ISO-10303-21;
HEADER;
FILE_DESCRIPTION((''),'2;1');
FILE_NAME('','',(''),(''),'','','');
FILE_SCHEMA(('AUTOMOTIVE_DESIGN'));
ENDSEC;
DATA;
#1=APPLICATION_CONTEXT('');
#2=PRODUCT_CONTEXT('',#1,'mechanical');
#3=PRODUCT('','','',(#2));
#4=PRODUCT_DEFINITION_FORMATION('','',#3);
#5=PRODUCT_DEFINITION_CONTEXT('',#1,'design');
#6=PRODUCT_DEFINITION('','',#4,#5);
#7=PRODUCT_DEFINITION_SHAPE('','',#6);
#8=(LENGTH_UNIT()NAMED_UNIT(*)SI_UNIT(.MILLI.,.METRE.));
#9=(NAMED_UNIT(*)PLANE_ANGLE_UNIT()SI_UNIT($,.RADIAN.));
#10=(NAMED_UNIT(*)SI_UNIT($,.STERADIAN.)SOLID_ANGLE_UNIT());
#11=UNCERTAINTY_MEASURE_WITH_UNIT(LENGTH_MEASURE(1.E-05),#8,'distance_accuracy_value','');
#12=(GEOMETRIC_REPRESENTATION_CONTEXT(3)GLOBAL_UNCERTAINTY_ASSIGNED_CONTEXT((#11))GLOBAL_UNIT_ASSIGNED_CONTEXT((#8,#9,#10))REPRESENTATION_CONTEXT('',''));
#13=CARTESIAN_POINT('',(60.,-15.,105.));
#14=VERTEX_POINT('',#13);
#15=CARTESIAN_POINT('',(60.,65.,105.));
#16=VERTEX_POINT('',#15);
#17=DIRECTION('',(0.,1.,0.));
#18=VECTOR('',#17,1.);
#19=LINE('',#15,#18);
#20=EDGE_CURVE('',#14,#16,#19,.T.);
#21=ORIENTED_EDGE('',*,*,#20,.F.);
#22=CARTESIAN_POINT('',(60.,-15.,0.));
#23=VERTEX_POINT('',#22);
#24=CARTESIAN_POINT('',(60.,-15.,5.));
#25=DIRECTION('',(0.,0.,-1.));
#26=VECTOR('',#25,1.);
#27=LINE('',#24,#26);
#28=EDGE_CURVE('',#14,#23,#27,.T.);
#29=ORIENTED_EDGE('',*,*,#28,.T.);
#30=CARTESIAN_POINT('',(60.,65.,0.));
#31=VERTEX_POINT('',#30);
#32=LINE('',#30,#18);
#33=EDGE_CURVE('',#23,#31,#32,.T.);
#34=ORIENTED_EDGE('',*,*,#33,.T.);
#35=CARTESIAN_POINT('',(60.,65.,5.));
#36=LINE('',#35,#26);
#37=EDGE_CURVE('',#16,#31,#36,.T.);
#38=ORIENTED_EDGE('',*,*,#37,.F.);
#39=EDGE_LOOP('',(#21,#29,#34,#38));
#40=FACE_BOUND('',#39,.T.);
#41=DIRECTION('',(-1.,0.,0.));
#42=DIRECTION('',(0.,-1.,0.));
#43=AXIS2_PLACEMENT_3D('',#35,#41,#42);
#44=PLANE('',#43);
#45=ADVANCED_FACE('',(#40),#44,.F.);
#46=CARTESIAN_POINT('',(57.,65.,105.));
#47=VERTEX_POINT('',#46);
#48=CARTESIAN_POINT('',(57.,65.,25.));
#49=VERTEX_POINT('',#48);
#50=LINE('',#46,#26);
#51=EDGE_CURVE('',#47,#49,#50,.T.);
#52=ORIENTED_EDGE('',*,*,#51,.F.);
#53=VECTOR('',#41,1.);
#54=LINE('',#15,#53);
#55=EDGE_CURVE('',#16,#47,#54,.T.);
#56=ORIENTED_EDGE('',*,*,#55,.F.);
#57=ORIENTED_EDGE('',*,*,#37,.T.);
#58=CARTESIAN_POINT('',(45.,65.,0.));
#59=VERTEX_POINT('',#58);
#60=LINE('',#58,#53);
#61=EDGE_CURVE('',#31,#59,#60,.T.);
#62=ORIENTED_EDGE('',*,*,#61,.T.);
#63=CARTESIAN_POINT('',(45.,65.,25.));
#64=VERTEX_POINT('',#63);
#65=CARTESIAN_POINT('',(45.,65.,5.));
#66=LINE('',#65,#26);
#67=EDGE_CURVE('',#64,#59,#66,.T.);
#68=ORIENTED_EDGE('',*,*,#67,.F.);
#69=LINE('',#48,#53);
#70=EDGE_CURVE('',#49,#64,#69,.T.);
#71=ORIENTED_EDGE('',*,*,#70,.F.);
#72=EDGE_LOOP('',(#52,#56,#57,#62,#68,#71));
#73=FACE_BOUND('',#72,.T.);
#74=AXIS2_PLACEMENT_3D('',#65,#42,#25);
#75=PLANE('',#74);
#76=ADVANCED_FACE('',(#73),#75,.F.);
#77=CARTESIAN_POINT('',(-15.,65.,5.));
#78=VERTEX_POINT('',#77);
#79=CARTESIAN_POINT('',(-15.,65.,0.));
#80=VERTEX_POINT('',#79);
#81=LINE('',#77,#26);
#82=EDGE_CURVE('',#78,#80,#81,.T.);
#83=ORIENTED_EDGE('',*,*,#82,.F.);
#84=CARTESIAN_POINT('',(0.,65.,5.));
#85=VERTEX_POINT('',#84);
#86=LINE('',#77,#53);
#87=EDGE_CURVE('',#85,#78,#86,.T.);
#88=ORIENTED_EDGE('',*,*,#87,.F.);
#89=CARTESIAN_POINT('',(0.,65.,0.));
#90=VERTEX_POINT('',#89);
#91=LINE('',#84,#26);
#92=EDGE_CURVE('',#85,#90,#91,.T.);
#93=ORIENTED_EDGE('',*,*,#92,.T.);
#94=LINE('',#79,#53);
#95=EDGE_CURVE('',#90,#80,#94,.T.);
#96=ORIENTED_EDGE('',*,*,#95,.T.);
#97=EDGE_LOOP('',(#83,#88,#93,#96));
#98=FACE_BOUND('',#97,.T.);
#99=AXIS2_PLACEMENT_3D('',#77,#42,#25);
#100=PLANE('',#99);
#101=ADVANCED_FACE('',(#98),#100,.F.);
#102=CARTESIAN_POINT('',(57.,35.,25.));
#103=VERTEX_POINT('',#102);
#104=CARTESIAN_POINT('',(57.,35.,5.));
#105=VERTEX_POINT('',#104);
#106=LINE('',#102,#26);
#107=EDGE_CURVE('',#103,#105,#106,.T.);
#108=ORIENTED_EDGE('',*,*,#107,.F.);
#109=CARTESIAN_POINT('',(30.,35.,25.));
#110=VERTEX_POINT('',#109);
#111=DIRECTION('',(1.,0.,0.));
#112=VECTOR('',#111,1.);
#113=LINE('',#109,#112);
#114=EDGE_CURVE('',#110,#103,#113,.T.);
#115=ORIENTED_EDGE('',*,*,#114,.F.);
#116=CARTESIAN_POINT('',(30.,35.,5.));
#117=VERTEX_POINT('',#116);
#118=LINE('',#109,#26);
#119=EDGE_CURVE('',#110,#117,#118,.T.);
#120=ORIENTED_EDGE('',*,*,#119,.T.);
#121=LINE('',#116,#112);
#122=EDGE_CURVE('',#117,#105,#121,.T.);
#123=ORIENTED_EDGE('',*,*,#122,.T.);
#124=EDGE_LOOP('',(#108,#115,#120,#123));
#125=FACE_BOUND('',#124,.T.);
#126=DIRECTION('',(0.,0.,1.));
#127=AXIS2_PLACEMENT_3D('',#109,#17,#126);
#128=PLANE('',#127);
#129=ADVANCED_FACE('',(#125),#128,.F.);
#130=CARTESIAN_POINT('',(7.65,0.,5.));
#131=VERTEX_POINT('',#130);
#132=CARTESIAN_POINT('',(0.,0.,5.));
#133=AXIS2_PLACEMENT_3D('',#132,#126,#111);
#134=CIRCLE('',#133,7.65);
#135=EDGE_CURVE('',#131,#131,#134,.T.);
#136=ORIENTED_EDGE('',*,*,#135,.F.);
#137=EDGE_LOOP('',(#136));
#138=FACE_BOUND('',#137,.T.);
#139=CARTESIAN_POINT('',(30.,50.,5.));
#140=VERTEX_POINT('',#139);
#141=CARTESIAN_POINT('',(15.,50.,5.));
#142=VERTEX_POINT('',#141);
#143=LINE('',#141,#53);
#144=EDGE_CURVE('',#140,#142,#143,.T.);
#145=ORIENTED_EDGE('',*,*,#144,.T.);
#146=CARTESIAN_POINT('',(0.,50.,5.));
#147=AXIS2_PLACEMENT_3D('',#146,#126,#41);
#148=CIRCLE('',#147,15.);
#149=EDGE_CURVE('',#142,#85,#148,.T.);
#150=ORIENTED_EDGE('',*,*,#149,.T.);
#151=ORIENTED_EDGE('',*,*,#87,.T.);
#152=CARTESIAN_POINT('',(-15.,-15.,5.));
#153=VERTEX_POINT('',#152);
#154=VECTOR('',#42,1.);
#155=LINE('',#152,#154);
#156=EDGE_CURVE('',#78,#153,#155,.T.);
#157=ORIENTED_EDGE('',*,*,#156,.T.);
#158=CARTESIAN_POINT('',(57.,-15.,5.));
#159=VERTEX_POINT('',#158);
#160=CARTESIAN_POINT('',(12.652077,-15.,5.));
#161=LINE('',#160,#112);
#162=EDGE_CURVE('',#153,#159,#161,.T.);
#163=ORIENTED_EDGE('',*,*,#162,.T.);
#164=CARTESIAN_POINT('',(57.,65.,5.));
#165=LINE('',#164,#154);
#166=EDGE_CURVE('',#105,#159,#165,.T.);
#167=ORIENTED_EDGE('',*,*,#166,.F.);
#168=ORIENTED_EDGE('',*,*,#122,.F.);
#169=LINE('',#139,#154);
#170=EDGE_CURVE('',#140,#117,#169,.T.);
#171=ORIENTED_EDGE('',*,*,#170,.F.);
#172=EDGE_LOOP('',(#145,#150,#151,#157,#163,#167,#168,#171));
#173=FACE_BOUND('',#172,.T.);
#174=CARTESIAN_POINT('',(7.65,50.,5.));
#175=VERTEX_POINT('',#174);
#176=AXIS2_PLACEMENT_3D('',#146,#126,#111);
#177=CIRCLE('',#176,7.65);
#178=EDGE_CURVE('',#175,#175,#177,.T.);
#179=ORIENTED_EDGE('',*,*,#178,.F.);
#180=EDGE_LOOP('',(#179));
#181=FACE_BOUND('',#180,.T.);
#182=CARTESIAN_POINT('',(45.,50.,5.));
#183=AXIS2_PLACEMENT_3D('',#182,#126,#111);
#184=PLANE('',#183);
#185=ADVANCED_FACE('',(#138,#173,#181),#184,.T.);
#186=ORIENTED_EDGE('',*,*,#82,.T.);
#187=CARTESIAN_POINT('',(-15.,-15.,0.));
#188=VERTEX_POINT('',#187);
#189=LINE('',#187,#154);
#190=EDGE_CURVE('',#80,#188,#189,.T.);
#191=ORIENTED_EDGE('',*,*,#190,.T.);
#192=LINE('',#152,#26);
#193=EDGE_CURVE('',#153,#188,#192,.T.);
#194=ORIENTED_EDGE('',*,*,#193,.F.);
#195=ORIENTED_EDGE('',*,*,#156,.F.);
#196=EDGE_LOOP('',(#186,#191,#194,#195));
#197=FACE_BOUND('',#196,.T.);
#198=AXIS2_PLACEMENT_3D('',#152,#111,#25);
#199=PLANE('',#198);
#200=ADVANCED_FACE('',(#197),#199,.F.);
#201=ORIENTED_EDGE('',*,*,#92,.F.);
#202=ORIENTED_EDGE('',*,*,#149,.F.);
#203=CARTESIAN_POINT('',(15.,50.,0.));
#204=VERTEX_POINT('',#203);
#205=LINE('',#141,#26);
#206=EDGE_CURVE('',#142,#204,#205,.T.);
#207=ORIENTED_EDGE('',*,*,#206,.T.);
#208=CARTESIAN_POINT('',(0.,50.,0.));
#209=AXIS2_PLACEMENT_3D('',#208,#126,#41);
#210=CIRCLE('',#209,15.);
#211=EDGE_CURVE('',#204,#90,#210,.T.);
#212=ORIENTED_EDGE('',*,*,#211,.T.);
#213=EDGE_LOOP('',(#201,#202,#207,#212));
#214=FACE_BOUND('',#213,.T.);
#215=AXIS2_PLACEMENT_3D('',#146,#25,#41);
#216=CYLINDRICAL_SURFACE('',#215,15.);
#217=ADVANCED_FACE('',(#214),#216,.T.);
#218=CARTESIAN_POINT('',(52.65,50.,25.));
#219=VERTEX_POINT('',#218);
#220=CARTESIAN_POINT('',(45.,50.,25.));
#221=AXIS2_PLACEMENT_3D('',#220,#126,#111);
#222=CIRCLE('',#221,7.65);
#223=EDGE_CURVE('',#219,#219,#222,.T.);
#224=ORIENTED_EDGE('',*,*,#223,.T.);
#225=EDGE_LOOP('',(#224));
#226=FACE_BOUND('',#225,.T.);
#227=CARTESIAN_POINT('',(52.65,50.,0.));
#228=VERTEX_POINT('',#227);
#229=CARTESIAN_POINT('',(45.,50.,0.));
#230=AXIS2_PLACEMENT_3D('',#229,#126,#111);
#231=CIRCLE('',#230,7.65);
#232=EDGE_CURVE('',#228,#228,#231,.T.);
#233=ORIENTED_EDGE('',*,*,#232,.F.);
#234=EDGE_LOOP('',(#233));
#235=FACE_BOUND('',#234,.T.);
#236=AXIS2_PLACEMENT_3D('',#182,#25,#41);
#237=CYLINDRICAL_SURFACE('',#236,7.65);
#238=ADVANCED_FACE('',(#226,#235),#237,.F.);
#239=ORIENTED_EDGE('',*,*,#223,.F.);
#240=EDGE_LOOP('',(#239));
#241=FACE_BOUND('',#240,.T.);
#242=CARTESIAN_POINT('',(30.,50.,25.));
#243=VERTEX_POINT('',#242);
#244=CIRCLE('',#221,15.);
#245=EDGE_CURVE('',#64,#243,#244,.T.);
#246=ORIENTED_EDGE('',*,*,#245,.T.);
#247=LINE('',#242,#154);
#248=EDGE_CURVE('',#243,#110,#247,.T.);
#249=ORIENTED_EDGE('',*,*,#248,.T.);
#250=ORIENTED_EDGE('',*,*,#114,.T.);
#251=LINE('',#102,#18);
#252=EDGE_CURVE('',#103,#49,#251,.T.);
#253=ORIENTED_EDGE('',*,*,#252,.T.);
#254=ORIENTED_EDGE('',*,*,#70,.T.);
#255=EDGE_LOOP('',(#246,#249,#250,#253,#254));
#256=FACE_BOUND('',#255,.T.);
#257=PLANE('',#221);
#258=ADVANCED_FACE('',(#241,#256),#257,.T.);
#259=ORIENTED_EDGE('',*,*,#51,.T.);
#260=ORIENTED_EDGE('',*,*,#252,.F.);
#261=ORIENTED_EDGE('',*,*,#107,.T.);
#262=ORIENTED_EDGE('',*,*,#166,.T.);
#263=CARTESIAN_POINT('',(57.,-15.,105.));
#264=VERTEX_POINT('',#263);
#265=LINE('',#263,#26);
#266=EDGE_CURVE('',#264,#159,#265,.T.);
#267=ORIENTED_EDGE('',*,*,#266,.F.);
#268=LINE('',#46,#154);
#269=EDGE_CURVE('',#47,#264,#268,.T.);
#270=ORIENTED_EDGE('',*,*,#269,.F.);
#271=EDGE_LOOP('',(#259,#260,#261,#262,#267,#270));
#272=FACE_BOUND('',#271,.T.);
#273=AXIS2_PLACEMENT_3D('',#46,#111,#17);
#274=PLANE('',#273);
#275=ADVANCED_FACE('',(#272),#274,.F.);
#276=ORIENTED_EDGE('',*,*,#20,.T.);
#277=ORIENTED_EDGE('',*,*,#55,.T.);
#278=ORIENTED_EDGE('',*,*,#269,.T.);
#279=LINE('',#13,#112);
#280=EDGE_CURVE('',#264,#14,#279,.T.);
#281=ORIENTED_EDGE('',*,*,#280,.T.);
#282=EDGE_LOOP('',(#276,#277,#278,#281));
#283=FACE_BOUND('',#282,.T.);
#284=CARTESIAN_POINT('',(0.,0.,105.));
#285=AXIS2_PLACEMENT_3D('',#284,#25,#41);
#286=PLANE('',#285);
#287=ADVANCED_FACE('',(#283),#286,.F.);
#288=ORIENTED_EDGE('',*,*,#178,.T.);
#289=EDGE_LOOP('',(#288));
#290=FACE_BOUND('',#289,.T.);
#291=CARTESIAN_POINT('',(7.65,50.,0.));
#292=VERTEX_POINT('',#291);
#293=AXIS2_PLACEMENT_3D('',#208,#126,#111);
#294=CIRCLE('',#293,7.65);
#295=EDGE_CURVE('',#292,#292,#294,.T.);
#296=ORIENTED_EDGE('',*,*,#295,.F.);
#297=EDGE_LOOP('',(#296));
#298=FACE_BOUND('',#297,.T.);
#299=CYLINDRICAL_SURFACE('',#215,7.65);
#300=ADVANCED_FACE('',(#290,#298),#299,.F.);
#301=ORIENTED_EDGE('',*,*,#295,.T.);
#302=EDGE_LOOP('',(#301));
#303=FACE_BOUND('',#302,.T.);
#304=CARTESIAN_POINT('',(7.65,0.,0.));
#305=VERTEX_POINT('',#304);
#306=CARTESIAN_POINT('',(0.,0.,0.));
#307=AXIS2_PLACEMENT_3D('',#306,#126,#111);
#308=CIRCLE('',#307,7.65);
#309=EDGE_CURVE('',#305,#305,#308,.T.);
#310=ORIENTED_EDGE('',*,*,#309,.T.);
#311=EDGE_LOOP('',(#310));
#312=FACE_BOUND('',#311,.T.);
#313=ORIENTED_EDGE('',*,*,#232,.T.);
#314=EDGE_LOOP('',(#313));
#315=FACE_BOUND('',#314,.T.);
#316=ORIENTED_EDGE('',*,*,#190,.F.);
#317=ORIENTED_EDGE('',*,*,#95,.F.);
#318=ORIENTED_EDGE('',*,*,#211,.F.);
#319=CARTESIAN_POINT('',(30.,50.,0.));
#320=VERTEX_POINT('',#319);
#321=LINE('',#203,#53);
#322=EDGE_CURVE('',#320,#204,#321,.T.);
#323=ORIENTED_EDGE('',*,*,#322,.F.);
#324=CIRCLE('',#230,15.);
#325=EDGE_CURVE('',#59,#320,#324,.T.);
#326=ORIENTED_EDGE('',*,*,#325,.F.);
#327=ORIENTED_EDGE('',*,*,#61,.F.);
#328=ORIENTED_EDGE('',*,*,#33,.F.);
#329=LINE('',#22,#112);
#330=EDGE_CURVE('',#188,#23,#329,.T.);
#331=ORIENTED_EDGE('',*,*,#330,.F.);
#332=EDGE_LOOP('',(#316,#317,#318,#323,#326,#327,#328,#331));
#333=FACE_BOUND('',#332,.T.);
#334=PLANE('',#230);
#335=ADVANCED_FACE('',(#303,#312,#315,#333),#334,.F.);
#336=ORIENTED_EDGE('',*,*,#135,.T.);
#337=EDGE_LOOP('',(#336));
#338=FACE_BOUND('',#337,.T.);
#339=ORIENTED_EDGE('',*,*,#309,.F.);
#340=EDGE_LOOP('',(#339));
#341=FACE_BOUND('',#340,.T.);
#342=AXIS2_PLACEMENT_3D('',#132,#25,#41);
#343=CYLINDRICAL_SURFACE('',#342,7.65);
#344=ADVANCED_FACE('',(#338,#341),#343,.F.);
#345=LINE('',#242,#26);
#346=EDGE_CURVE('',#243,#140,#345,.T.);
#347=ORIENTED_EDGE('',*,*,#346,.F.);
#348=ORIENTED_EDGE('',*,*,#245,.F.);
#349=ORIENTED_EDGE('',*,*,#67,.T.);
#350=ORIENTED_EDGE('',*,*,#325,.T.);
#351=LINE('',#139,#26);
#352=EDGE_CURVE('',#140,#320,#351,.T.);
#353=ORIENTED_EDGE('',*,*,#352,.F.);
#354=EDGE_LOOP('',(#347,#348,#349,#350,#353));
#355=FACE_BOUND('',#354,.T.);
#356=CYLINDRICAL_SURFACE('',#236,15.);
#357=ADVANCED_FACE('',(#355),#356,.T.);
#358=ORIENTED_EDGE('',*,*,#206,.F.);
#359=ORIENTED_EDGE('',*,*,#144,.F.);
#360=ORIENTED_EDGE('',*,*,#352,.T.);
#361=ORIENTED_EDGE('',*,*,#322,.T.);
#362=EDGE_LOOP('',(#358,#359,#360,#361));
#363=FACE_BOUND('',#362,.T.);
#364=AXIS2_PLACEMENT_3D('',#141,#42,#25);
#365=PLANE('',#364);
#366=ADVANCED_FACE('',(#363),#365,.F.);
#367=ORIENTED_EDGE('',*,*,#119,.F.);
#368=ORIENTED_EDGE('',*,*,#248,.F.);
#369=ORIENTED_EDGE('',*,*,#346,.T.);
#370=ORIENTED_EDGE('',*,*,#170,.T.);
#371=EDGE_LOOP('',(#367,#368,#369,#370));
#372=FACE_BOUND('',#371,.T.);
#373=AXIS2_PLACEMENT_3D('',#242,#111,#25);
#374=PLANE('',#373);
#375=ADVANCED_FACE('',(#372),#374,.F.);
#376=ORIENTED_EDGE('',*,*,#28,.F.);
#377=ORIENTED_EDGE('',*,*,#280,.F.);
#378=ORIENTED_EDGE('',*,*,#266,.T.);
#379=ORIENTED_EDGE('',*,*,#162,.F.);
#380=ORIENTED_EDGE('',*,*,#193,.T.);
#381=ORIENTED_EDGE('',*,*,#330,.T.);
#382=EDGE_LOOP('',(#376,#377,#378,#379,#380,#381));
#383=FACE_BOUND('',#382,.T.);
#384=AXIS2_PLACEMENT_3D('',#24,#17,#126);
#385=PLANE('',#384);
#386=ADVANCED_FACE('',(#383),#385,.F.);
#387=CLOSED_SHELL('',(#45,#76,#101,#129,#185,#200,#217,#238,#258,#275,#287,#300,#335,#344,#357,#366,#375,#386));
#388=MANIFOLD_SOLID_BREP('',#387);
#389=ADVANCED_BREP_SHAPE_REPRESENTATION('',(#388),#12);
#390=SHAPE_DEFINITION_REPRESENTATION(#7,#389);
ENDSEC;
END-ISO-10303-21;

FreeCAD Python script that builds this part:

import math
import FreeCAD as App
import Part
import Sketcher
from FreeCAD import Vector
Q = App.Units.Quantity

doc = App.newDocument("Part")
body = doc.addObject("PartDesign::Body", "Body")

# Sketch on XY plane
sketch1 = body.newObject("Sketcher::SketchObject", "Sketch")
sketch1.AttachmentSupport = (doc.getObject("XY_Plane"), [""])
sketch1.MapMode = "FlatFace"
sketch1.addGeometry([
    Part.LineSegment(Vector(0, 65, 0), Vector(-15, 65, 0)),  # 0
    Part.LineSegment(Vector(-15, 65, 0), Vector(-15, -15, 0)),  # 1
    Part.LineSegment(Vector(-15, -15, 0), Vector(60, -15, 0)),  # 2
    Part.LineSegment(Vector(60, -15, 0), Vector(60, 65, 0)),  # 3
    Part.LineSegment(Vector(60, 65, 0), Vector(45, 65, 0)),  # 4
    Part.ArcOfCircle(Part.Circle(Vector(45, 50, 0), Vector(0, 0, 1), 15), math.radians(90), math.radians(180)),  # 5
    Part.LineSegment(Vector(30, 50, 0), Vector(15, 50, 0)),  # 6
    Part.ArcOfCircle(Part.Circle(Vector(0, 50, 0), Vector(0, 0, 1), 15), math.radians(0), math.radians(90)),  # 7
    Part.Circle(Vector(0, 0, 0), Vector(0, 0, 1), 7.65),  # 8
    Part.Circle(Vector(45, 50, 0), Vector(0, 0, 1), 7.65),  # 9
    Part.Circle(Vector(0, 50, 0), Vector(0, 0, 1), 7.65),  # 10
], False)
sketch1.addConstraint([
    Sketcher.Constraint("Coincident", 0, 2, 1, 1),
    Sketcher.Constraint("Coincident", 1, 2, 2, 1),
    Sketcher.Constraint("Coincident", 2, 2, 3, 1),
    Sketcher.Constraint("Coincident", 3, 2, 4, 1),
    Sketcher.Constraint("Tangent", 4, 2, 5, 1),
    Sketcher.Constraint("Coincident", 5, 2, 6, 1),
    Sketcher.Constraint("Coincident", 6, 2, 7, 1),
    Sketcher.Constraint("Tangent", 7, 2, 0, 1),
    Sketcher.Constraint("Horizontal", 0),
    Sketcher.Constraint("Vertical", 1),
    Sketcher.Constraint("Horizontal", 2),
    Sketcher.Constraint("Vertical", 3),
    Sketcher.Constraint("Horizontal", 4),
    Sketcher.Constraint("Horizontal", 6),
    Sketcher.Constraint("Coincident", 8, 3, -1, 1),
    Sketcher.Constraint("Coincident", 9, 3, 5, 3),
    Sketcher.Constraint("Coincident", 10, 3, 7, 3),
    Sketcher.Constraint("Equal", 5, 7),
    Sketcher.Constraint("Equal", 8, 9),
    Sketcher.Constraint("Equal", 9, 10),
    Sketcher.Constraint("PointOnObject", 7, 3, -2),
    Sketcher.Constraint("Horizontal", 5, 3, 7, 3),
    Sketcher.Constraint("Horizontal", 10, 3, 5, 2),
    Sketcher.Constraint("Equal", 0, 4),
    Sketcher.Constraint("Equal", 4, 6),
    Sketcher.Constraint("Radius", 5, Q("15 mm")),
    Sketcher.Constraint("Diameter", 8, Q("15.3 mm")),
    Sketcher.Constraint("DistanceX", 0, 2, 0, 1, Q("15 mm")),
    Sketcher.Constraint("DistanceY", 1, 2, 1, 1, Q("80 mm")),
    Sketcher.Constraint("DistanceY", -1, 1, 5, 3, Q("50 mm")),
])
pad1 = body.newObject("PartDesign::Pad", "Pad")
pad1.Profile = sketch1
pad1.Length = 5

# Sketch on XY plane
sketch2 = body.newObject("Sketcher::SketchObject", "Sketch001")
sketch2.AttachmentSupport = (doc.getObject("XY_Plane"), [""])
sketch2.MapMode = "FlatFace"
sketch2.AttachmentOffset = App.Placement(Vector(0, 0, 5), App.Rotation())
sketch2.addGeometry([
    Part.LineSegment(Vector(57, 65, 0), Vector(57, -15, 0)),
    Part.LineSegment(Vector(57, -15, 0), Vector(60, -15, 0)),
    Part.LineSegment(Vector(60, -15, 0), Vector(60, 65, 0)),
    Part.LineSegment(Vector(60, 65, 0), Vector(57, 65, 0)),
], False)
sketch2.addConstraint([
    Sketcher.Constraint("Coincident", 0, 2, 1, 1),
    Sketcher.Constraint("Coincident", 1, 2, 2, 1),
    Sketcher.Constraint("Coincident", 2, 2, 3, 1),
    Sketcher.Constraint("Coincident", 3, 2, 0, 1),
    Sketcher.Constraint("Vertical", 0),
    Sketcher.Constraint("Horizontal", 1),
    Sketcher.Constraint("Vertical", 2),
    Sketcher.Constraint("Horizontal", 3),
    Sketcher.Constraint("DistanceX", 1, 1, 1, 2, Q("3 mm")),
    Sketcher.Constraint("DistanceY", 0, 2, 0, 1, Q("80 mm")),
    Sketcher.Constraint("DistanceX", -1, 1, 0, 2, Q("57 mm")),
    Sketcher.Constraint("DistanceY", 0, 2, -1, 1, Q("15 mm")),
])
pad2 = body.newObject("PartDesign::Pad", "Pad001")
pad2.Profile = sketch2
pad2.Length = 100

# Sketch on XY plane
sketch3 = body.newObject("Sketcher::SketchObject", "Sketch002")
sketch3.AttachmentSupport = (doc.getObject("XY_Plane"), [""])
sketch3.MapMode = "FlatFace"
sketch3.AttachmentOffset = App.Placement(Vector(0, 0, 5), App.Rotation())
sketch3.addGeometry([
    Part.LineSegment(Vector(30, 50, 0), Vector(30, 35, 0)),  # 0
    Part.LineSegment(Vector(30, 35, 0), Vector(57, 35, 0)),  # 1
    Part.LineSegment(Vector(57, 35, 0), Vector(57, 65, 0)),  # 2
    Part.LineSegment(Vector(57, 65, 0), Vector(45, 65, 0)),  # 3
    Part.ArcOfCircle(Part.Circle(Vector(45, 50, 0), Vector(0, 0, 1), 15), math.radians(90), math.radians(180)),  # 4
    Part.Circle(Vector(45, 50, 0), Vector(0, 0, 1), 7.65),  # 5
], False)
sketch3.addConstraint([
    Sketcher.Constraint("Coincident", 0, 2, 1, 1),
    Sketcher.Constraint("Coincident", 1, 2, 2, 1),
    Sketcher.Constraint("Coincident", 2, 2, 3, 1),
    Sketcher.Constraint("Tangent", 3, 2, 4, 1),
    Sketcher.Constraint("Tangent", 4, 2, 0, 1),
    Sketcher.Constraint("Vertical", 0),
    Sketcher.Constraint("Horizontal", 1),
    Sketcher.Constraint("Vertical", 2),
    Sketcher.Constraint("Horizontal", 3),
    Sketcher.Constraint("Coincident", 5, 3, 4, 3),
    Sketcher.Constraint("Radius", 4, Q("15 mm")),
    Sketcher.Constraint("Diameter", 5, Q("15.3 mm")),
    Sketcher.Constraint("DistanceX", 1, 1, 1, 2, Q("27 mm")),
    Sketcher.Constraint("DistanceY", 0, 2, 0, 1, Q("15 mm")),
    Sketcher.Constraint("DistanceX", -1, 1, 4, 3, Q("45 mm")),
    Sketcher.Constraint("DistanceY", -1, 1, 4, 3, Q("50 mm")),
])
pad3 = body.newObject("PartDesign::Pad", "Pad002")
pad3.Profile = sketch3
pad3.Length = 20

doc.recompute()
